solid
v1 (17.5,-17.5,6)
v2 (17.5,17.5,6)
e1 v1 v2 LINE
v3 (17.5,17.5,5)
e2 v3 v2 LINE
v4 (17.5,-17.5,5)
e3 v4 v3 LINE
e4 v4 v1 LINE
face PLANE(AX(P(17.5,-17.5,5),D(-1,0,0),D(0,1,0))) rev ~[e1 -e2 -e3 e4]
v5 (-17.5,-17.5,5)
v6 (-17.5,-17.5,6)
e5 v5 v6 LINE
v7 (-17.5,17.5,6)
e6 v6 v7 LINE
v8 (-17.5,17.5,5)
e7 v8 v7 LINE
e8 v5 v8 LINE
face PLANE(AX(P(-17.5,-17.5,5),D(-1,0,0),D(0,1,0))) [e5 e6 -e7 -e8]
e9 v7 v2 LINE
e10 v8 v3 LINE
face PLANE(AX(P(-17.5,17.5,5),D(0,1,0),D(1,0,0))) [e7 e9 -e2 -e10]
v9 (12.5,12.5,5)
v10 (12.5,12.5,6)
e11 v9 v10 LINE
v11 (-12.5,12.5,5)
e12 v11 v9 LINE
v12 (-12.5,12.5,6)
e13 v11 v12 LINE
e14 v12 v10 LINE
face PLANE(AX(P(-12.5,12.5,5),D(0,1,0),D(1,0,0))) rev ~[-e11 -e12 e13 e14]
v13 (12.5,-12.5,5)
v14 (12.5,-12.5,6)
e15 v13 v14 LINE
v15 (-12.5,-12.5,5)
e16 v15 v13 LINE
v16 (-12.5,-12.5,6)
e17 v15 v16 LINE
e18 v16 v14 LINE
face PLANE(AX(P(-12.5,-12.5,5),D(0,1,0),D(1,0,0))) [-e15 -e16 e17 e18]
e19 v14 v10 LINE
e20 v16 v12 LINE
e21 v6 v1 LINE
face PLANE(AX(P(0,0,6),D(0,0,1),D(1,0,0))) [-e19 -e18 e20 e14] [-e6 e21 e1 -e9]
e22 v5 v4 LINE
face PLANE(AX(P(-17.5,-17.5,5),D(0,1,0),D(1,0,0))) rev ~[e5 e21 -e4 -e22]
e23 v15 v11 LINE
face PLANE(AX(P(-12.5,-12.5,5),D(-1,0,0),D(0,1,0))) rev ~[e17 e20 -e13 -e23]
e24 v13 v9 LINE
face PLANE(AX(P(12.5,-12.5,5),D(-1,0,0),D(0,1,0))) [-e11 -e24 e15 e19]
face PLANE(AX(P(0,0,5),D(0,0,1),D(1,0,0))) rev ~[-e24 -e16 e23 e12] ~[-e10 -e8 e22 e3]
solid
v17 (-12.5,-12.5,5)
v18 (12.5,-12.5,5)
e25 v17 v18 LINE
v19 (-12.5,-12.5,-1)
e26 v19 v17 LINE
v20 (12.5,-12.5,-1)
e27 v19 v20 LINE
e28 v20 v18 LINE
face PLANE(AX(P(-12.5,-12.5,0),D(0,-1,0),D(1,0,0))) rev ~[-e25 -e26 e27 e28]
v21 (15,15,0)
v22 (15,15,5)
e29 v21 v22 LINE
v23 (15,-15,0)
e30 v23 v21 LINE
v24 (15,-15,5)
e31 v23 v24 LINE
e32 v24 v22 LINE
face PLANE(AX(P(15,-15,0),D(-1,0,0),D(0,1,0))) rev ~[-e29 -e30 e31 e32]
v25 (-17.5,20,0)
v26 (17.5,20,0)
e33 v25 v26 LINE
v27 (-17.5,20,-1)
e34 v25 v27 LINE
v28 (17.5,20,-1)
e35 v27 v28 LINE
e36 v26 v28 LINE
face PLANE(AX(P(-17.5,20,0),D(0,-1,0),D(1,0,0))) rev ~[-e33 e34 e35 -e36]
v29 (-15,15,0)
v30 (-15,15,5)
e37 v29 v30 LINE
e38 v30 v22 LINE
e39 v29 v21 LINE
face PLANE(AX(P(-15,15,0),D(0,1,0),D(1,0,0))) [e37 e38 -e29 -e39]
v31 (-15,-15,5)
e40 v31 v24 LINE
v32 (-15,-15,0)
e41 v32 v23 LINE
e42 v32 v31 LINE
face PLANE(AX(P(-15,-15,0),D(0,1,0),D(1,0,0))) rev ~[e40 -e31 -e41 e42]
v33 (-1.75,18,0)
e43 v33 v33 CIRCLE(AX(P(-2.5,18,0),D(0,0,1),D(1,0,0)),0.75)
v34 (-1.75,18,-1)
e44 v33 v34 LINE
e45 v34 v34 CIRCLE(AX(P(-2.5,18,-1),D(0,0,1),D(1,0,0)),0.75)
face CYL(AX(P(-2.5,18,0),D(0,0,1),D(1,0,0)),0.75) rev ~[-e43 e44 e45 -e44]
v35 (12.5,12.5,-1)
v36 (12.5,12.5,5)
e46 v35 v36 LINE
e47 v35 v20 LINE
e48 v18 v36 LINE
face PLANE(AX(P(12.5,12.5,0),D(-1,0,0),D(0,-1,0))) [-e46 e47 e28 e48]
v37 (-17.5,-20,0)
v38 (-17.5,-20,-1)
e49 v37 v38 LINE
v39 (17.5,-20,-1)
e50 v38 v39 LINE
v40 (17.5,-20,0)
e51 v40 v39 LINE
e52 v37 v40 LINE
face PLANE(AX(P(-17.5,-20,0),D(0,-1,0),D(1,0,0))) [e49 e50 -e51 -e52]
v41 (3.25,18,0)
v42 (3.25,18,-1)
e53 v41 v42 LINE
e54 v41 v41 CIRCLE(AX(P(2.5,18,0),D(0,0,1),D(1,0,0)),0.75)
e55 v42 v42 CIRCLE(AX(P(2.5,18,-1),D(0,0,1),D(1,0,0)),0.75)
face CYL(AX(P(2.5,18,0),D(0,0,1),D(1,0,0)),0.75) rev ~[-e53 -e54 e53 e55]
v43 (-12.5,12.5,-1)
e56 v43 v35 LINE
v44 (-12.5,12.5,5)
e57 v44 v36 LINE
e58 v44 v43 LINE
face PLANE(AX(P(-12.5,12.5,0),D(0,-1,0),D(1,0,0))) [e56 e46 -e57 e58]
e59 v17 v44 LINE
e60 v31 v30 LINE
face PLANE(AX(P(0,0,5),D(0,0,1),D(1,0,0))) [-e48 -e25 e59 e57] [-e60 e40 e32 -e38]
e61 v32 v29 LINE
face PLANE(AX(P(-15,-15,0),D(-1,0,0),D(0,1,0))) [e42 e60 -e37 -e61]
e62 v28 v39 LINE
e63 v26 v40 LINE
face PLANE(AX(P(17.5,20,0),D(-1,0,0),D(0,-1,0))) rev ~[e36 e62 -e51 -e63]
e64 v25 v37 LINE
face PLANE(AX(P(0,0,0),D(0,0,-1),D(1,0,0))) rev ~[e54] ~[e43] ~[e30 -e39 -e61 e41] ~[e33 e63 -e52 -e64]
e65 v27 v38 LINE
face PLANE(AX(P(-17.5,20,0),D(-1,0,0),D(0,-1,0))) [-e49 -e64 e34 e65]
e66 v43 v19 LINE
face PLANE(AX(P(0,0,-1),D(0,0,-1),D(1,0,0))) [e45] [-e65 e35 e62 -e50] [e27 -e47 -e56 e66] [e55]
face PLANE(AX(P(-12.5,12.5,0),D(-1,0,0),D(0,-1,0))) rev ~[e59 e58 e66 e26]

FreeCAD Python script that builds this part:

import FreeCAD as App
import Part
import Sketcher
Q = App.Units.Quantity


def add_polygon(sketch, points):
    """Adds a closed chain of lines whose ends are joined by coincident constraints."""
    first, n = sketch.GeometryCount, len(points)
    for a, b in zip(points, points[1:] + points[:1]):
        sketch.addGeometry(Part.LineSegment(App.Vector(*a, 0), App.Vector(*b, 0)), False)
    for i in range(n):
        sketch.addConstraint(Sketcher.Constraint("Coincident", first + i, 2, first + (i + 1) % n, 1))

doc = App.newDocument("Part")
body = doc.addObject("PartDesign::Body", "Body")

sketch1 = body.newObject("Sketcher::SketchObject", "Sketch")
sketch1.AttachmentSupport = (doc.getObject("XY_Plane"), [""])
sketch1.MapMode = "FlatFace"
add_polygon(sketch1, [(-15, 15), (-15, -15), (15, -15), (15, 15)])
add_polygon(sketch1, [(12, -12), (-12, -12), (-12, 12), (12, 12)])
sketch1.addConstraint([
    Sketcher.Constraint("Vertical", 0),
    Sketcher.Constraint("Horizontal", 1),
    Sketcher.Constraint("Vertical", 2),
    Sketcher.Constraint("Horizontal", 3),
    Sketcher.Constraint("Horizontal", 4),
    Sketcher.Constraint("Vertical", 5),
    Sketcher.Constraint("Horizontal", 6),
    Sketcher.Constraint("Vertical", 7),
    Sketcher.Constraint("Symmetric", 0, 2, 2, 2, -1, 1),
    Sketcher.Constraint("Symmetric", 4, 2, 6, 2, -1, 1),
    Sketcher.Constraint("Equal", 3, 0),
    Sketcher.Constraint("Equal", 6, 5),
    Sketcher.Constraint("DistanceX", 1, 1, 1, 2, Q("30 mm")),
    Sketcher.Constraint("DistanceX", 4, 2, 4, 1, Q("25 mm")),
])
pad1 = body.newObject("PartDesign::Pad", "Pad")
pad1.Profile = sketch1
pad1.Length = 5

sketch2 = body.newObject("Sketcher::SketchObject", "Sketch001")
sketch2.AttachmentSupport = (doc.getObject("XY_Plane"), [""])
sketch2.MapMode = "FlatFace"
add_polygon(sketch2, [(-18, -20), (-18, 20), (18, 20), (18, -20)])
add_polygon(sketch2, [(12, 12), (-12, 12), (-12, -12), (12, -12)])
sketch2.addConstraint([
    Sketcher.Constraint("Vertical", 0),
    Sketcher.Constraint("Horizontal", 1),
    Sketcher.Constraint("Vertical", 2),
    Sketcher.Constraint("Horizontal", 3),
    Sketcher.Constraint("Horizontal", 4),
    Sketcher.Constraint("Vertical", 5),
    Sketcher.Constraint("Horizontal", 6),
    Sketcher.Constraint("Vertical", 7),
    Sketcher.Constraint("Symmetric", 0, 2, 2, 2, -1, 1),
    Sketcher.Constraint("Symmetric", 4, 2, 6, 2, -1, 1),
    Sketcher.Constraint("Equal", 6, 5),
    Sketcher.Constraint("DistanceX", 1, 1, 1, 2, Q("35 mm")),
    Sketcher.Constraint("DistanceX", 4, 2, 4, 1, Q("25 mm")),
    Sketcher.Constraint("DistanceY", 0, 1, 0, 2, Q("40 mm")),
])
pad2 = body.newObject("PartDesign::Pad", "Pad001")
pad2.Profile = sketch2
pad2.Length = 1
pad2.Reversed = True

sketch3 = body.newObject("Sketcher::SketchObject", "Sketch002")
sketch3.AttachmentSupport = (doc.getObject("XY_Plane"), [""])
sketch3.MapMode = "FlatFace"
sketch3.addGeometry([
    Part.Circle(App.Vector(-2.5, 18, 0), App.Vector(0, 0, 1), 0.8),
    Part.Circle(App.Vector(2.5, 18, 0), App.Vector(0, 0, 1), 0.8),
], False)
sketch3.addConstraint([
    Sketcher.Constraint("Equal", 0, 1),
    Sketcher.Constraint("Symmetric", 0, 3, 1, 3, -2),
    Sketcher.Constraint("Diameter", 0, Q("1.5 mm")),
    Sketcher.Constraint("DistanceY", -1, 1, 0, 3, Q("18 mm")),
    Sketcher.Constraint("DistanceX", 0, 3, 1, 3, Q("5 mm")),
])
pocket1 = body.newObject("PartDesign::Pocket", "Pocket")
pocket1.Profile = sketch3
pocket1.Type = "ThroughAll"
body2 = doc.addObject("PartDesign::Body", "Body001")

sketch4 = body2.newObject("Sketcher::SketchObject", "Sketch003")
sketch4.AttachmentSupport = (doc.getObject("XY_Plane001"), [""])
sketch4.MapMode = "FlatFace"
sketch4.AttachmentOffset = App.Placement(App.Vector(0, 0, 5), App.Rotation())
add_polygon(sketch4, [(-18, 18), (-18, -18), (18, -18), (18, 18)])
add_polygon(sketch4, [(12, -12), (-12, -12), (-12, 12), (12, 12)])
sketch4.addConstraint([
    Sketcher.Constraint("Vertical", 0),
    Sketcher.Constraint("Horizontal", 1),
    Sketcher.Constraint("Vertical", 2),
    Sketcher.Constraint("Horizontal", 3),
    Sketcher.Constraint("Horizontal", 4),
    Sketcher.Constraint("Vertical", 5),
    Sketcher.Constraint("Horizontal", 6),
    Sketcher.Constraint("Vertical", 7),
    Sketcher.Constraint("Symmetric", 0, 2, 2, 2, -1, 1),
    Sketcher.Constraint("Symmetric", 4, 2, 6, 2, -1, 1),
    Sketcher.Constraint("Equal", 3, 0),
    Sketcher.Constraint("Equal", 6, 5),
    Sketcher.Constraint("DistanceX", 1, 1, 1, 2, Q("35 mm")),
    Sketcher.Constraint("DistanceX", 4, 2, 4, 1, Q("25 mm")),
])
pad3 = body2.newObject("PartDesign::Pad", "Pad002")
pad3.Profile = sketch4
pad3.Length = 1

doc.recompute()
